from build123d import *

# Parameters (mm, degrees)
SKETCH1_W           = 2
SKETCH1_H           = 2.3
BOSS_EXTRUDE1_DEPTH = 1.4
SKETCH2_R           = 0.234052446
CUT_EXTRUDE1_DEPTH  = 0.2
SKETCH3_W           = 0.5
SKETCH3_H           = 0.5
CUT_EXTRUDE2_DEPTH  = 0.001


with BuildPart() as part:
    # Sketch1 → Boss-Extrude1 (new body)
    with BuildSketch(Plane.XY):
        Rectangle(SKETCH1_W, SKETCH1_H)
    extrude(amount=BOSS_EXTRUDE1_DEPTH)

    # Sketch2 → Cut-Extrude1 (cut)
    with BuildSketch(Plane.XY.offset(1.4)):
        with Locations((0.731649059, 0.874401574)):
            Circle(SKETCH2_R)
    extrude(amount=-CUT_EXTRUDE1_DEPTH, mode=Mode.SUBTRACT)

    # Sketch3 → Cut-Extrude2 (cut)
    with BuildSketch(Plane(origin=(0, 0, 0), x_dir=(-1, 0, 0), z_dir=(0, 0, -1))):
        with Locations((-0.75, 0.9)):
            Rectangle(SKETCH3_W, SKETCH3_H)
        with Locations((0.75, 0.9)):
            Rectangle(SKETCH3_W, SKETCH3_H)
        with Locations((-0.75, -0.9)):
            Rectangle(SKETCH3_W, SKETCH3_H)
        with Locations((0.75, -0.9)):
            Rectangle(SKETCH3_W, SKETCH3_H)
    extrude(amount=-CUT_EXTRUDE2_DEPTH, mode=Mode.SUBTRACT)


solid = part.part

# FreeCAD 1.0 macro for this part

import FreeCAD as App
import Part
import Sketcher
from FreeCAD import Vector
Q = App.Units.Quantity

doc = App.newDocument("Part")
body = doc.addObject("PartDesign::Body", "Body")

# Sketch on XY plane
sketch1 = doc.addObject("Sketcher::SketchObject", "Sketch")
body.addObject(sketch1)
sketch1.AttachmentSupport = (doc.XY_Plane, [""])
sketch1.MapMode = "FlatFace"
sketch1.addGeometry(Part.LineSegment(Vector(-1, 1.1, 0), Vector(-1, -1.1, 0)), False)
sketch1.addGeometry(Part.LineSegment(Vector(-1, -1.1, 0), Vector(1, -1.1, 0)), False)
sketch1.addGeometry(Part.LineSegment(Vector(1, -1.1, 0), Vector(1, 1.1, 0)), False)
sketch1.addGeometry(Part.LineSegment(Vector(1, 1.1, 0), Vector(-1, 1.1, 0)), False)
sketch1.addConstraint(Sketcher.Constraint("Coincident", 0, 2, 1, 1))
sketch1.addConstraint(Sketcher.Constraint("Coincident", 1, 2, 2, 1))
sketch1.addConstraint(Sketcher.Constraint("Coincident", 2, 2, 3, 1))
sketch1.addConstraint(Sketcher.Constraint("Coincident", 3, 2, 0, 1))
sketch1.addConstraint(Sketcher.Constraint("Vertical", 0))
sketch1.addConstraint(Sketcher.Constraint("Horizontal", 1))
sketch1.addConstraint(Sketcher.Constraint("Vertical", 2))
sketch1.addConstraint(Sketcher.Constraint("Horizontal", 3))
sketch1.addConstraint(Sketcher.Constraint("Symmetric", 0, 2, 2, 2, -1, 1))
sketch1.addConstraint(Sketcher.Constraint("DistanceX", 1, 1, 1, 2, Q("2 mm")))
sketch1.addConstraint(Sketcher.Constraint("DistanceY", 0, 2, 0, 1, Q("2.3 mm")))
pad1 = doc.addObject("PartDesign::Pad", "Pad")
body.addObject(pad1)
pad1.Profile = sketch1
pad1.Length = 1.4

# Sketch on XY plane
sketch2 = doc.addObject("Sketcher::SketchObject", "Sketch001")
body.addObject(sketch2)
sketch2.AttachmentSupport = (doc.XY_Plane, [""])
sketch2.MapMode = "FlatFace"
sketch2.AttachmentOffset = App.Placement(Vector(0, 0, 1.4), App.Rotation())
sketch2.addGeometry(Part.Circle(Vector(0.73, 0.87, 0), Vector(0, 0, 1), 0.23), False)
sketch2.addConstraint(Sketcher.Constraint("Diameter", 0, Q("0.468105 mm")))
sketch2.addConstraint(Sketcher.Constraint("DistanceY", -1, 1, 0, 3, Q("0.874402 mm")))
sketch2.addConstraint(Sketcher.Constraint("DistanceX", -1, 1, 0, 3, Q("0.731649 mm")))
pocket1 = doc.addObject("PartDesign::Pocket", "Pocket")
body.addObject(pocket1)
pocket1.Profile = sketch2
pocket1.Length = 0.2

# Sketch on XY plane
sketch3 = doc.addObject("Sketcher::SketchObject", "Sketch002")
body.addObject(sketch3)
sketch3.AttachmentSupport = (doc.XY_Plane, [""])
sketch3.MapMode = "FlatFace"
sketch3.addGeometry(Part.LineSegment(Vector(1, 1.15, 0), Vector(1, 0.65, 0)), False)
sketch3.addGeometry(Part.LineSegment(Vector(1, 0.65, 0), Vector(0.5, 0.65, 0)), False)
sketch3.addGeometry(Part.LineSegment(Vector(0.5, 0.65, 0), Vector(0.5, 1.15, 0)), False)
sketch3.addGeometry(Part.LineSegment(Vector(0.5, 1.15, 0), Vector(1, 1.15, 0)), False)
sketch3.addGeometry(Part.LineSegment(Vector(-0.5, 1.15, 0), Vector(-0.5, 0.65, 0)), False)
sketch3.addGeometry(Part.LineSegment(Vector(-0.5, 0.65, 0), Vector(-1, 0.65, 0)), False)
sketch3.addGeometry(Part.LineSegment(Vector(-1, 0.65, 0), Vector(-1, 1.15, 0)), False)
sketch3.addGeometry(Part.LineSegment(Vector(-1, 1.15, 0), Vector(-0.5, 1.15, 0)), False)
sketch3.addGeometry(Part.LineSegment(Vector(1, -0.65, 0), Vector(1, -1.15, 0)), False)
sketch3.addGeometry(Part.LineSegment(Vector(1, -1.15, 0), Vector(0.5, -1.15, 0)), False)
sketch3.addGeometry(Part.LineSegment(Vector(0.5, -1.15, 0), Vector(0.5, -0.65, 0)), False)
sketch3.addGeometry(Part.LineSegment(Vector(0.5, -0.65, 0), Vector(1, -0.65, 0)), False)
sketch3.addGeometry(Part.LineSegment(Vector(-0.5, -0.65, 0), Vector(-0.5, -1.15, 0)), False)
sketch3.addGeometry(Part.LineSegment(Vector(-0.5, -1.15, 0), Vector(-1, -1.15, 0)), False)
sketch3.addGeometry(Part.LineSegment(Vector(-1, -1.15, 0), Vector(-1, -0.65, 0)), False)
sketch3.addGeometry(Part.LineSegment(Vector(-1, -0.65, 0), Vector(-0.5, -0.65, 0)), False)
sketch3.addConstraint(Sketcher.Constraint("Coincident", 0, 2, 1, 1))
sketch3.addConstraint(Sketcher.Constraint("Coincident", 1, 2, 2, 1))
sketch3.addConstraint(Sketcher.Constraint("Coincident", 2, 2, 3, 1))
sketch3.addConstraint(Sketcher.Constraint("Coincident", 3, 2, 0, 1))
sketch3.addConstraint(Sketcher.Constraint("Coincident", 4, 2, 5, 1))
sketch3.addConstraint(Sketcher.Constraint("Coincident", 5, 2, 6, 1))
sketch3.addConstraint(Sketcher.Constraint("Coincident", 6, 2, 7, 1))
sketch3.addConstraint(Sketcher.Constraint("Coincident", 7, 2, 4, 1))
sketch3.addConstraint(Sketcher.Constraint("Coincident", 8, 2, 9, 1))
sketch3.addConstraint(Sketcher.Constraint("Coincident", 9, 2, 10, 1))
sketch3.addConstraint(Sketcher.Constraint("Coincident", 10, 2, 11, 1))
sketch3.addConstraint(Sketcher.Constraint("Coincident", 11, 2, 8, 1))
sketch3.addConstraint(Sketcher.Constraint("Coincident", 12, 2, 13, 1))
sketch3.addConstraint(Sketcher.Constraint("Coincident", 13, 2, 14, 1))
sketch3.addConstraint(Sketcher.Constraint("Coincident", 14, 2, 15, 1))
sketch3.addConstraint(Sketcher.Constraint("Coincident", 15, 2, 12, 1))
sketch3.addConstraint(Sketcher.Constraint("Vertical", 0))
sketch3.addConstraint(Sketcher.Constraint("Horizontal", 1))
sketch3.addConstraint(Sketcher.Constraint("Vertical", 2))
sketch3.addConstraint(Sketcher.Constraint("Horizontal", 3))
sketch3.addConstraint(Sketcher.Constraint("Vertical", 4))
sketch3.addConstraint(Sketcher.Constraint("Horizontal", 5))
sketch3.addConstraint(Sketcher.Constraint("Vertical", 6))
sketch3.addConstraint(Sketcher.Constraint("Horizontal", 7))
sketch3.addConstraint(Sketcher.Constraint("Vertical", 8))
sketch3.addConstraint(Sketcher.Constraint("Horizontal", 9))
sketch3.addConstraint(Sketcher.Constraint("Vertical", 10))
sketch3.addConstraint(Sketcher.Constraint("Horizontal", 11))
sketch3.addConstraint(Sketcher.Constraint("Vertical", 12))
sketch3.addConstraint(Sketcher.Constraint("Horizontal", 13))
sketch3.addConstraint(Sketcher.Constraint("Vertical", 14))
sketch3.addConstraint(Sketcher.Constraint("Horizontal", 15))
sketch3.addConstraint(Sketcher.Constraint("Symmetric", 6, 2, 8, 2, -1, 1))
sketch3.addConstraint(Sketcher.Constraint("Symmetric", 4, 2, 10, 2, -1, 1))
sketch3.addConstraint(Sketcher.Constraint("Symmetric", 2, 2, 12, 2, -1, 1))
sketch3.addConstraint(Sketcher.Constraint("Symmetric", 0, 2, 14, 2, -1, 1))
sketch3.addConstraint(Sketcher.Constraint("Symmetric", 1, 2, 4, 2, -2))
sketch3.addConstraint(Sketcher.Constraint("Symmetric", 3, 2, 6, 2, -2))
sketch3.addConstraint(Sketcher.Constraint("Equal", 15, 0))
sketch3.addConstraint(Sketcher.Constraint("DistanceX", 1, 2, 1, 1, Q("0.5 mm")))
sketch3.addConstraint(Sketcher.Constraint("DistanceX", -1, 1, 0, 2, Q("1 mm")))
sketch3.addConstraint(Sketcher.Constraint("DistanceY", 8, 2, 0, 2, Q("1.8 mm")))
pocket2 = doc.addObject("PartDesign::Pocket", "Pocket001")
body.addObject(pocket2)
pocket2.Profile = sketch3
pocket2.Length = 0.001
pocket2.Reversed = True

doc.recompute()
